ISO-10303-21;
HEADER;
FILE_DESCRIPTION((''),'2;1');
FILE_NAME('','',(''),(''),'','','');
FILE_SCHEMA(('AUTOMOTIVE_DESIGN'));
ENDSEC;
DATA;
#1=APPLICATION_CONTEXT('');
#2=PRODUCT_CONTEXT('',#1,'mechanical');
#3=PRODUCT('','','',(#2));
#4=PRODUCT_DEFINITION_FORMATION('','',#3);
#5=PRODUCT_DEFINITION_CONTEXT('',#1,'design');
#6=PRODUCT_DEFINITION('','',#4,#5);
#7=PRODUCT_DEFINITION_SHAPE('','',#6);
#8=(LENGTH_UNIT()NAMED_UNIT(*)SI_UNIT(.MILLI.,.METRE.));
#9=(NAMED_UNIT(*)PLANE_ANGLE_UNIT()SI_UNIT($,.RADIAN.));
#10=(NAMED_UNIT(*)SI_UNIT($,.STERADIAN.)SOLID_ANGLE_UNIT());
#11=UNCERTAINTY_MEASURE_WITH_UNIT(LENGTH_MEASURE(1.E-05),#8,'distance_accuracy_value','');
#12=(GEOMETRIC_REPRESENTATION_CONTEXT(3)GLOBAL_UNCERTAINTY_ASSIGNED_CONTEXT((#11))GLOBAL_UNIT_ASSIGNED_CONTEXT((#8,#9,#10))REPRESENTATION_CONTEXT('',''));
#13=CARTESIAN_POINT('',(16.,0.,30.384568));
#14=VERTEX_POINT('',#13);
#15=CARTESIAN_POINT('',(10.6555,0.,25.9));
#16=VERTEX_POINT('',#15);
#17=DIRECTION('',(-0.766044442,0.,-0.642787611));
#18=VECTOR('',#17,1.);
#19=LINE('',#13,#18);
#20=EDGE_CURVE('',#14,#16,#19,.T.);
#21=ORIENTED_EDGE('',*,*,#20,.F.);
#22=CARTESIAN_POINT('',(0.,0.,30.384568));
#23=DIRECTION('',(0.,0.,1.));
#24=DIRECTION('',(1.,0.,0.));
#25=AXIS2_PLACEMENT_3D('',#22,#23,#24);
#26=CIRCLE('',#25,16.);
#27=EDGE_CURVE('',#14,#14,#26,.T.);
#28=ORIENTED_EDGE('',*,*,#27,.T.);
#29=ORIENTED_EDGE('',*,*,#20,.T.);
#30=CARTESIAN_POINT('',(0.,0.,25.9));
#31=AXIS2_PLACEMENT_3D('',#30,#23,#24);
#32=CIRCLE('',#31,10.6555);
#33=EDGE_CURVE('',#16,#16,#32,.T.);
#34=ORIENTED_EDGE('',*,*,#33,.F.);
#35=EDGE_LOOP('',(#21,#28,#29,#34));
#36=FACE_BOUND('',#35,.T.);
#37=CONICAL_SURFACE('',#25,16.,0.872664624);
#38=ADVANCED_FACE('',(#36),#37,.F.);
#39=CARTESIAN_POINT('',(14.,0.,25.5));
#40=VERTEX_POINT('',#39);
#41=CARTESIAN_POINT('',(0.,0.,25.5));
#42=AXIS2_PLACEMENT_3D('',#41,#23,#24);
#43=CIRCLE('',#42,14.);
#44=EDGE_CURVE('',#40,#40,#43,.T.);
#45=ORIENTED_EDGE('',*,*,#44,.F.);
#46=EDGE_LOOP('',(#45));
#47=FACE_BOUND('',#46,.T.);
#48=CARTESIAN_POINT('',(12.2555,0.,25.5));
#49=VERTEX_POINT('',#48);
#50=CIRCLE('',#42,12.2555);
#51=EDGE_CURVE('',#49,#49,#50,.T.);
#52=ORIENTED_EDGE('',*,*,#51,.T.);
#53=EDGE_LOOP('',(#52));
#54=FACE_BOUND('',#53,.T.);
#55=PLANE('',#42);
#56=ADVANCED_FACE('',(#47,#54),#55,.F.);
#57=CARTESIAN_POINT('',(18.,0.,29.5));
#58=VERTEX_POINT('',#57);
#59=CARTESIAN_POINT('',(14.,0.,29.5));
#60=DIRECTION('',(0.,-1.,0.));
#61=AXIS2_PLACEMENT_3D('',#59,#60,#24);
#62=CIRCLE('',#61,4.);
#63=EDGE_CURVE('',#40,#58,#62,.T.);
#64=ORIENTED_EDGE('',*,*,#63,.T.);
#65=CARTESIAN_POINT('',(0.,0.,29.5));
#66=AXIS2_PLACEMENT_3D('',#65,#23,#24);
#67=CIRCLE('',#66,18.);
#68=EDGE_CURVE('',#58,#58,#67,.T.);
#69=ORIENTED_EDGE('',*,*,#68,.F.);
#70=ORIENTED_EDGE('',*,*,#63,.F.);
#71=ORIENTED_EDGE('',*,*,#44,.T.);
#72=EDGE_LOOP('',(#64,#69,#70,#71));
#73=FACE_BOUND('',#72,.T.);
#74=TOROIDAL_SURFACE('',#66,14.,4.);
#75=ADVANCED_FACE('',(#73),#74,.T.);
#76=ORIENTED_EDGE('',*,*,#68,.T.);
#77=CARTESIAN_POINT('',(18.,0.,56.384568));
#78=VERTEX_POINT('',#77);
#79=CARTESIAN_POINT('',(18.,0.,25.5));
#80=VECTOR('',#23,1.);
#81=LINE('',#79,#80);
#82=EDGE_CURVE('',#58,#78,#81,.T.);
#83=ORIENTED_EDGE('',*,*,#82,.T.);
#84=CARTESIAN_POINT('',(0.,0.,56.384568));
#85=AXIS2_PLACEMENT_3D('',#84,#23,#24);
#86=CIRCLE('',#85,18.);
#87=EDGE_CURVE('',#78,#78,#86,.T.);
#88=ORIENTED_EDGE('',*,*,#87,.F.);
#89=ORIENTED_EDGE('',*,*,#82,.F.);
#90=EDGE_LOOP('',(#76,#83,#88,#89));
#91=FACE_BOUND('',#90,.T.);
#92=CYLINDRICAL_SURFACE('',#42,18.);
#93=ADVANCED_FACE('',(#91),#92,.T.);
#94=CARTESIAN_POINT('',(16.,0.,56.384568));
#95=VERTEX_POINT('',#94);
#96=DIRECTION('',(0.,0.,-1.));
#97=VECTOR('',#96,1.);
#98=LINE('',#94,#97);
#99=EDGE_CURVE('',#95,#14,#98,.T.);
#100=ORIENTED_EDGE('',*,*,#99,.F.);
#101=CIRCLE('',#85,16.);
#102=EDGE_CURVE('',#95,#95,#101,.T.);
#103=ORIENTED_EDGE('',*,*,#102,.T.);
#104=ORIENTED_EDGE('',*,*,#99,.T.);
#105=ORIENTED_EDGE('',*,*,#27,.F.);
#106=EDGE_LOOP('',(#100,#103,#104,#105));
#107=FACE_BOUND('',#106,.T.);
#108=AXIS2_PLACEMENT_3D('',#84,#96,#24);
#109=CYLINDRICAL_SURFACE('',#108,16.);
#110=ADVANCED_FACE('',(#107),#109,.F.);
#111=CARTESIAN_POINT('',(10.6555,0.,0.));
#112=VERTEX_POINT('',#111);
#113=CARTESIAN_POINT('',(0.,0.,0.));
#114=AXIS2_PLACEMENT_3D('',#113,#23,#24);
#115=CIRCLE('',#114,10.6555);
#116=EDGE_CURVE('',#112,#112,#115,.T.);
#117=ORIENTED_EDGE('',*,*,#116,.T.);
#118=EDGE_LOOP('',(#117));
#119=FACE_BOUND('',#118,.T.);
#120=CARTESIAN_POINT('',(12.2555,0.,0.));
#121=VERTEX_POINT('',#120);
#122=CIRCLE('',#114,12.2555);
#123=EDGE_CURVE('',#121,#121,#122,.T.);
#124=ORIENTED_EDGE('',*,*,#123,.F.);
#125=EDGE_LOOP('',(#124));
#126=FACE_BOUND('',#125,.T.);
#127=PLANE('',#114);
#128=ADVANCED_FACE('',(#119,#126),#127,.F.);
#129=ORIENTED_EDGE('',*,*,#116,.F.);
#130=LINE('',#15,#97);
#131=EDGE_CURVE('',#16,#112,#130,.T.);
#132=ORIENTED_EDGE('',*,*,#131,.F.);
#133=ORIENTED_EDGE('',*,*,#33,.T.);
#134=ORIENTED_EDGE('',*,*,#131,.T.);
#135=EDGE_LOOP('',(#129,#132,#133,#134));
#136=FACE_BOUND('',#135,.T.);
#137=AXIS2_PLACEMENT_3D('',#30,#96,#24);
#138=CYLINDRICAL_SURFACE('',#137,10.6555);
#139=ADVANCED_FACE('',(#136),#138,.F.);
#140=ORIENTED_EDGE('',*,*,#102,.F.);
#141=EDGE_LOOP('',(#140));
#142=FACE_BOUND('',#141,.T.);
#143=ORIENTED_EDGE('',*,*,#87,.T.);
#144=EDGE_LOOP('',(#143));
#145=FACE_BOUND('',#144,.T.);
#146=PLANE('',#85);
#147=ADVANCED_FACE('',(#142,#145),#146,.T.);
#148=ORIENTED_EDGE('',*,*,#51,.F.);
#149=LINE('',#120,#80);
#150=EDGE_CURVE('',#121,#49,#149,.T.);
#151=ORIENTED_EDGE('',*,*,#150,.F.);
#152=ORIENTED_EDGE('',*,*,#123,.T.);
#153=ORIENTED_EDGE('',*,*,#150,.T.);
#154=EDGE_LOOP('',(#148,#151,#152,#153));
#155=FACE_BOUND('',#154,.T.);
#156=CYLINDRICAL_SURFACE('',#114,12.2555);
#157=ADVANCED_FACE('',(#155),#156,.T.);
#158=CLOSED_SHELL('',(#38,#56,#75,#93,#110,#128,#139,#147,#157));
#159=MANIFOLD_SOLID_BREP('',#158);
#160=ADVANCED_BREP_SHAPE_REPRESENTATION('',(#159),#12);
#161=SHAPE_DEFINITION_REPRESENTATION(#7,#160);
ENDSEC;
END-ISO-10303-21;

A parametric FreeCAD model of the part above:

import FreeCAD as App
import Part
import Sketcher
Q = App.Units.Quantity


def edges_at(feature, points):
    """Names of the edges that pass closest to the given points."""
    edges = feature.Shape.Edges
    near = lambda p: min(range(len(edges)), key=lambda i: edges[i].distToShape(Part.Vertex(*p))[0])
    return sorted({f"Edge{near(p) + 1}" for p in points})

doc = App.newDocument("Part")
params = doc.addObject("Spreadsheet::Sheet", "Params")
for row, (alias, value) in enumerate([
    ("sketch1_width", "2 mm"),
    ("sketch1_height", "26 mm"),
    ("sketch1_width2", "1.6 mm"),
    ("sketch1_height2", "25.9 mm"),
    ("sketch1_height3", "25.5 mm"),
    ("revolution_angle", "360 deg"),
    ("fillet_radius", "4 mm"),
], start=1):
    params.set(f"A{row}", alias)
    params.set(f"B{row}", "=" + value)
    params.setAlias(f"B{row}", alias)

body = doc.addObject("PartDesign::Body", "Body")

sketch1 = body.newObject("Sketcher::SketchObject", "Sketch")
sketch1.AttachmentSupport = (doc.getObject("XZ_Plane"), [""])
sketch1.MapMode = "FlatFace"
sketch1.addGeometry(Part.LineSegment(App.Vector(10.6555, 25.9, 0), App.Vector(10.6555, 0, 0)), False)
sketch1.addGeometry(Part.LineSegment(App.Vector(10.6555, 0, 0), App.Vector(12.2555, 0, 0)), False)
sketch1.addGeometry(Part.LineSegment(App.Vector(12.2555, 0, 0), App.Vector(12.2555, 25.5, 0)), False)
sketch1.addGeometry(Part.LineSegment(App.Vector(12.2555, 25.5, 0), App.Vector(18, 25.5, 0)), False)
sketch1.addGeometry(Part.LineSegment(App.Vector(18, 25.5, 0), App.Vector(18, 56.384568, 0)), False)
sketch1.addGeometry(Part.LineSegment(App.Vector(18, 56.384568, 0), App.Vector(16, 56.384568, 0)), False)
sketch1.addGeometry(Part.LineSegment(App.Vector(16, 56.384568, 0), App.Vector(16, 30.384568, 0)), False)
sketch1.addGeometry(Part.LineSegment(App.Vector(16, 30.384568, 0), App.Vector(10.6555, 25.9, 0)), False)
sketch1.addConstraint(Sketcher.Constraint("Coincident", 0, 2, 1, 1))
sketch1.addConstraint(Sketcher.Constraint("Coincident", 1, 2, 2, 1))
sketch1.addConstraint(Sketcher.Constraint("Coincident", 2, 2, 3, 1))
sketch1.addConstraint(Sketcher.Constraint("Coincident", 3, 2, 4, 1))
sketch1.addConstraint(Sketcher.Constraint("Coincident", 4, 2, 5, 1))
sketch1.addConstraint(Sketcher.Constraint("Coincident", 5, 2, 6, 1))
sketch1.addConstraint(Sketcher.Constraint("Coincident", 6, 2, 7, 1))
sketch1.addConstraint(Sketcher.Constraint("Coincident", 7, 2, 0, 1))
sketch1.addConstraint(Sketcher.Constraint("Vertical", 0))
sketch1.addConstraint(Sketcher.Constraint("Horizontal", 1))
sketch1.addConstraint(Sketcher.Constraint("Vertical", 2))
sketch1.addConstraint(Sketcher.Constraint("Horizontal", 3))
sketch1.addConstraint(Sketcher.Constraint("Vertical", 4))
sketch1.addConstraint(Sketcher.Constraint("Horizontal", 5))
sketch1.addConstraint(Sketcher.Constraint("Vertical", 6))
sketch1.addConstraint(Sketcher.Constraint("PointOnObject", 0, 2, -1))
sketch1.addConstraint(Sketcher.Constraint("DistanceX", 5, 2, 5, 1, Q("2 mm")))
sketch1.addConstraint(Sketcher.Constraint("DistanceY", 6, 2, 6, 1, Q("26 mm")))
sketch1.addConstraint(Sketcher.Constraint("Angle", 7, Q("-140 deg")))
sketch1.addConstraint(Sketcher.Constraint("DistanceX", 1, 1, 1, 2, Q("1.6 mm")))
sketch1.addConstraint(Sketcher.Constraint("DistanceY", 0, 2, 0, 1, Q("25.9 mm")))
sketch1.addConstraint(Sketcher.Constraint("DistanceY", 2, 1, 2, 2, Q("25.5 mm")))
sketch1.addConstraint(Sketcher.Constraint("DistanceX", -1, 1, 3, 2, Q("18 mm")))
sketch1.addConstraint(Sketcher.Constraint("DistanceX", 3, 1, 3, 2, Q("5.7445 mm")))
sketch1.setExpression("Constraints[16]", "Params.sketch1_width")
sketch1.setExpression("Constraints[17]", "Params.sketch1_height")
sketch1.setExpression("Constraints[19]", "Params.sketch1_width2")
sketch1.setExpression("Constraints[20]", "Params.sketch1_height2")
sketch1.setExpression("Constraints[21]", "Params.sketch1_height3")
revolution = body.newObject("PartDesign::Revolution", "Revolution")
revolution.Profile = sketch1
revolution.ReferenceAxis = (sketch1, ["V_Axis"])
revolution.setExpression("Angle", "Params.revolution_angle")
doc.recompute()

fillet = body.newObject("PartDesign::Fillet", "Fillet")
fillet.Base = (revolution, edges_at(revolution, [(-18, 0, 25.5)]))
fillet.setExpression("Radius", "Params.fillet_radius")

doc.recompute()
